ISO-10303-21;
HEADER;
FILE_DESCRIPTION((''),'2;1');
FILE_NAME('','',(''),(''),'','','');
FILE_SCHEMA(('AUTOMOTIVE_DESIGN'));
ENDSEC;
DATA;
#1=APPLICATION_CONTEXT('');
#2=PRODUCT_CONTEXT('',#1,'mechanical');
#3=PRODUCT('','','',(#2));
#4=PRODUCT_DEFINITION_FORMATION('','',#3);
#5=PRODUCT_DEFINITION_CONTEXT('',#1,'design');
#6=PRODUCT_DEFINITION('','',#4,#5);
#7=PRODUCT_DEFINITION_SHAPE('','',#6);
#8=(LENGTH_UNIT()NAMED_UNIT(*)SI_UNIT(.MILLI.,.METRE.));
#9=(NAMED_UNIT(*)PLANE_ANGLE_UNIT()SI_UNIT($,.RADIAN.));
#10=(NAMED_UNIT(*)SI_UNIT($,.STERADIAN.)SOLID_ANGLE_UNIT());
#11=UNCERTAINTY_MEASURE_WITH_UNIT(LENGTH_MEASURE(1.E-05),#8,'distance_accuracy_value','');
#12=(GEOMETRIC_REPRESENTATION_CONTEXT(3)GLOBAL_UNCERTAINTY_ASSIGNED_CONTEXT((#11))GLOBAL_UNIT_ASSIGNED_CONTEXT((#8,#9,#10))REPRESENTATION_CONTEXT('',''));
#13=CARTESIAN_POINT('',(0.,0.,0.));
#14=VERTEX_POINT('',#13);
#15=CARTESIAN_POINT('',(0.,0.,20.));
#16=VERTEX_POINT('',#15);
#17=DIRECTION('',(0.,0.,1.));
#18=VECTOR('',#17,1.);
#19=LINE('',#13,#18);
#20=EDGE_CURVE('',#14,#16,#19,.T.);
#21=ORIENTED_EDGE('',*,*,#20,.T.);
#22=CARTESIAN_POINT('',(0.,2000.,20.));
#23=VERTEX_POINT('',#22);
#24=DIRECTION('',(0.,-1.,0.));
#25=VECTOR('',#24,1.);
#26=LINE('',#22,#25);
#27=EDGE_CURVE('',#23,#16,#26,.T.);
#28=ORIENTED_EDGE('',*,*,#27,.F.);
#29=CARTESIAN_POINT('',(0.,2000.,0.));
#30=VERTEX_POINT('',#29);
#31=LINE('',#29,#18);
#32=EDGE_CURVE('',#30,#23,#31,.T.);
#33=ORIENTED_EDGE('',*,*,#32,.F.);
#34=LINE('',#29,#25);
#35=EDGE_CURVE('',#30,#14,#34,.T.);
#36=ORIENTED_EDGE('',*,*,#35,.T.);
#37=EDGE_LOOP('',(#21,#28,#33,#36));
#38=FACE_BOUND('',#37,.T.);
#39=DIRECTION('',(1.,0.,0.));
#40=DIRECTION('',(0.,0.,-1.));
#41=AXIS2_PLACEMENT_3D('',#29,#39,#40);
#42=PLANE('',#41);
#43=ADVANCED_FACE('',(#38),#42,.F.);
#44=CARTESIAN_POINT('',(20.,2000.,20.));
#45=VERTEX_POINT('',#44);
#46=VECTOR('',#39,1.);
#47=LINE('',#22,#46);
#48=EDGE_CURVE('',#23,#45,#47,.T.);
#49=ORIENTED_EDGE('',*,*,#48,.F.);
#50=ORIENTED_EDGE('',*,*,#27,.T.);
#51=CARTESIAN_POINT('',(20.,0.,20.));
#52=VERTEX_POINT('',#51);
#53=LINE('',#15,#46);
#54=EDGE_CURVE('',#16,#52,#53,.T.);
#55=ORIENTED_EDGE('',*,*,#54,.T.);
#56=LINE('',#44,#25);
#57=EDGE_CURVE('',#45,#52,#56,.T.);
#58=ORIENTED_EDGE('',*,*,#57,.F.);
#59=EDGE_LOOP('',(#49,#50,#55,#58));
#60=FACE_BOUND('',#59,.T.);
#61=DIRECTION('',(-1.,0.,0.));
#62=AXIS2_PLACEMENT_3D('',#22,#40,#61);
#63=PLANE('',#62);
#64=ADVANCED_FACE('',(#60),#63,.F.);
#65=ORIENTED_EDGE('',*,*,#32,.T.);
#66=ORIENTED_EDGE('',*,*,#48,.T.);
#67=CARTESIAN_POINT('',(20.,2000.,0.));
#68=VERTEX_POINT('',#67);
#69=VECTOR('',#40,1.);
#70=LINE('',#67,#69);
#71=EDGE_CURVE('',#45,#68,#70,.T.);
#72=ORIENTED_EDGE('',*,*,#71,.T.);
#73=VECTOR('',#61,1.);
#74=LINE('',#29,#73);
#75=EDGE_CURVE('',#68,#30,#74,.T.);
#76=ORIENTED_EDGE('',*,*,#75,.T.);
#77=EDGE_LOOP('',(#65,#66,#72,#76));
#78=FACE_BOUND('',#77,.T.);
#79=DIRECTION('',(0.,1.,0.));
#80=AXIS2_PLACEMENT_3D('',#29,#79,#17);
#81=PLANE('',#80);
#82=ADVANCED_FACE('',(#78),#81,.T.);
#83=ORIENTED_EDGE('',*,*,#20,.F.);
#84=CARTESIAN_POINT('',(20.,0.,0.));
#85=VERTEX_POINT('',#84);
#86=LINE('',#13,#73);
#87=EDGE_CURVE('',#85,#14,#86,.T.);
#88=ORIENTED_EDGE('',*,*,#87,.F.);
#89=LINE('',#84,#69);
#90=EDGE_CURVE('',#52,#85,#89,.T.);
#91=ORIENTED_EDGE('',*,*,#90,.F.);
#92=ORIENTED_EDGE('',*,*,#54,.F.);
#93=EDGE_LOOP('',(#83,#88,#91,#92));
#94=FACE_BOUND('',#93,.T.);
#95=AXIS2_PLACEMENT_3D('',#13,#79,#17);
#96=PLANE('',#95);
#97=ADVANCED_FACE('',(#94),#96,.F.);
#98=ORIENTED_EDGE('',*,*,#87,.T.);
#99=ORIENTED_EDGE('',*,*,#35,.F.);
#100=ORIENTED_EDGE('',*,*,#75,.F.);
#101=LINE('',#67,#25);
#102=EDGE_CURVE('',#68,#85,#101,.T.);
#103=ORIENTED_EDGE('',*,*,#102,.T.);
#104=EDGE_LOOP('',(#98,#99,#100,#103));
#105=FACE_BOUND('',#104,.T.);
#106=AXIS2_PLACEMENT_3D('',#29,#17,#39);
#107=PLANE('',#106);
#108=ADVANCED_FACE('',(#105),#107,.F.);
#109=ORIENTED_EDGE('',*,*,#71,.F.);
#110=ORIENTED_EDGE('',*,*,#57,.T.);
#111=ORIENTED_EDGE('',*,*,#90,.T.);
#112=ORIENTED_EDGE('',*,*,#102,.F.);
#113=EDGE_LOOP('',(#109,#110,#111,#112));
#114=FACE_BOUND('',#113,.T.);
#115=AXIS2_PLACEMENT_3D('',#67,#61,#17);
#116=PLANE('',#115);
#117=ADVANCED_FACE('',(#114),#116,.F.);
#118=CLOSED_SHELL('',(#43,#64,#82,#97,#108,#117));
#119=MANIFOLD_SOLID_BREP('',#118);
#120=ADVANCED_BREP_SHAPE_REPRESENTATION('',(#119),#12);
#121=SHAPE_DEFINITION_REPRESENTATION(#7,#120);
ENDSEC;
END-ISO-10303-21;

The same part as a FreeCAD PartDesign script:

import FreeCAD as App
import Part
import Sketcher
Q = App.Units.Quantity

doc = App.newDocument("Part")
params = doc.addObject("Spreadsheet::Sheet", "Params")
for row, (alias, value) in enumerate([
    ("sketch1_width", "20 mm"),
    ("pad1_length", "2000 mm"),
], start=1):
    params.set(f"A{row}", alias)
    params.set(f"B{row}", "=" + value)
    params.setAlias(f"B{row}", alias)

body = doc.addObject("PartDesign::Body", "Body")

sketch1 = doc.addObject("Sketcher::SketchObject", "Sketch")
body.addObject(sketch1)
sketch1.AttachmentSupport = (doc.XZ_Plane, [""])
sketch1.MapMode = "FlatFace"
sketch1.addGeometry([
    Part.LineSegment(App.Vector(0, 0, 0), App.Vector(0, 20, 0)),
    Part.LineSegment(App.Vector(0, 20, 0), App.Vector(20, 20, 0)),
    Part.LineSegment(App.Vector(20, 20, 0), App.Vector(20, 0, 0)),
    Part.LineSegment(App.Vector(20, 0, 0), App.Vector(0, 0, 0)),
], False)
sketch1.addConstraint([
    Sketcher.Constraint("Coincident", 0, 2, 1, 1),
    Sketcher.Constraint("Coincident", 1, 2, 2, 1),
    Sketcher.Constraint("Coincident", 2, 2, 3, 1),
    Sketcher.Constraint("Coincident", 3, 2, 0, 1),
    Sketcher.Constraint("Vertical", 0),
    Sketcher.Constraint("Horizontal", 1),
    Sketcher.Constraint("Vertical", 2),
    Sketcher.Constraint("Horizontal", 3),
    Sketcher.Constraint("Coincident", 3, 2, -1, 1),
    Sketcher.Constraint("Equal", 3, 0),
    Sketcher.Constraint("DistanceX", 1, 1, 1, 2, Q("20 mm")),
])
sketch1.setExpression("Constraints[10]", "Params.sketch1_width")
pad1 = doc.addObject("PartDesign::Pad", "Pad")
body.addObject(pad1)
pad1.Profile = sketch1
pad1.setExpression("Length", "Params.pad1_length")
pad1.Reversed = True

doc.recompute()
